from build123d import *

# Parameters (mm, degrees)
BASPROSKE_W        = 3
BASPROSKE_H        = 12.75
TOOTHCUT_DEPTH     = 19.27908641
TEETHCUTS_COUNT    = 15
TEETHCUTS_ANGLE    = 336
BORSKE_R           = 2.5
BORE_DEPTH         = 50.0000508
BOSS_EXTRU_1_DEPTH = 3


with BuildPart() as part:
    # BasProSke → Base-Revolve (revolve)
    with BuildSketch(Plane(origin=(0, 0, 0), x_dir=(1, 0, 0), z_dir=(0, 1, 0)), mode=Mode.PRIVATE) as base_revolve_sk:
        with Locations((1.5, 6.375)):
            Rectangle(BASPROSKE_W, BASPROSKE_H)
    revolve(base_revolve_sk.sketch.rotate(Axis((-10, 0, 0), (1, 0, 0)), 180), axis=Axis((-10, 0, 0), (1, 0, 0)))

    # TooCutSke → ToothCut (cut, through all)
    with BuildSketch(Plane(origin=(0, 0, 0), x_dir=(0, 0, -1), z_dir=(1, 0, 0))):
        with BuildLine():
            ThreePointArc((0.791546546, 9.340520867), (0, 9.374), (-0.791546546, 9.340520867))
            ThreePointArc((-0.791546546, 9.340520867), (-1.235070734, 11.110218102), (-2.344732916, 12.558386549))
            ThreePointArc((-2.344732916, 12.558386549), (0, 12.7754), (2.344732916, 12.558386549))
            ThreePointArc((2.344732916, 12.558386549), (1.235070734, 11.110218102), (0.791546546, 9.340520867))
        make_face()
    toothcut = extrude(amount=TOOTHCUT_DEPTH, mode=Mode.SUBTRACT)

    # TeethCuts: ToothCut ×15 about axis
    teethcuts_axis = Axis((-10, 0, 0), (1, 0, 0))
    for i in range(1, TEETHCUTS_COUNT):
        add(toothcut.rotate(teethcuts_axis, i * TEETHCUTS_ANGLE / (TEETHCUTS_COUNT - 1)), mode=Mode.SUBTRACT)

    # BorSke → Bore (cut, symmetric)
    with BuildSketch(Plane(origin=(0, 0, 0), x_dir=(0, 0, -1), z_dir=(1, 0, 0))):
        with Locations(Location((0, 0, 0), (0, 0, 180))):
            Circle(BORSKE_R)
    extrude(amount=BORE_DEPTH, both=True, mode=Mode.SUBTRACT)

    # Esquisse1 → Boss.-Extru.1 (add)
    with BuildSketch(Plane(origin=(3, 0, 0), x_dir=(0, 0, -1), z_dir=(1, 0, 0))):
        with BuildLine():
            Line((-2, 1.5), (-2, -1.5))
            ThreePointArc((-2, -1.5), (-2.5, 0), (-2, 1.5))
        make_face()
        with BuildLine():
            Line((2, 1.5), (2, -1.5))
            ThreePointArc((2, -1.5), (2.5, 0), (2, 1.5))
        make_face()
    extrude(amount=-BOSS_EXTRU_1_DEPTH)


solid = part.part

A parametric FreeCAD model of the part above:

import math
import FreeCAD as App
import Part
import Sketcher
Q = App.Units.Quantity

doc = App.newDocument("Part")
body = doc.addObject("PartDesign::Body", "Body")

sketch1 = doc.addObject("Sketcher::SketchObject", "Sketch")
body.addObject(sketch1)
sketch1.AttachmentSupport = (doc.XZ_Plane, [""])
sketch1.MapMode = "FlatFace"
sketch1.addGeometry([
    Part.LineSegment(App.Vector(0, -12.8, 0), App.Vector(0, 0, 0)),
    Part.LineSegment(App.Vector(0, 0, 0), App.Vector(3, 0, 0)),
    Part.LineSegment(App.Vector(3, 0, 0), App.Vector(3, -12.8, 0)),
    Part.LineSegment(App.Vector(3, -12.8, 0), App.Vector(0, -12.8, 0)),
], False)
sketch1.addConstraint([
    Sketcher.Constraint("Coincident", 0, 2, 1, 1),
    Sketcher.Constraint("Coincident", 1, 2, 2, 1),
    Sketcher.Constraint("Coincident", 2, 2, 3, 1),
    Sketcher.Constraint("Coincident", 3, 2, 0, 1),
    Sketcher.Constraint("Vertical", 0),
    Sketcher.Constraint("Horizontal", 1),
    Sketcher.Constraint("Vertical", 2),
    Sketcher.Constraint("Horizontal", 3),
    Sketcher.Constraint("Coincident", 0, 2, -1, 1),
    Sketcher.Constraint("DistanceX", 1, 1, 1, 2, Q("3 mm")),
    Sketcher.Constraint("DistanceY", 0, 1, 0, 2, Q("12.75 mm")),
])
revolution = doc.addObject("PartDesign::Revolution", "Revolution")
body.addObject(revolution)
revolution.Profile = sketch1
revolution.ReferenceAxis = (sketch1, ["H_Axis"])
revolution.Angle = 360

sketch2 = doc.addObject("Sketcher::SketchObject", "Sketch001")
body.addObject(sketch2)
sketch2.AttachmentSupport = (doc.YZ_Plane, [""])
sketch2.MapMode = "FlatFace"
sketch2.addGeometry([
    Part.ArcOfCircle(Part.Circle(App.Vector(0, 0, 0), App.Vector(0, 0, 1), 9.4), math.radians(-4.84), math.radians(4.84)),
    Part.ArcOfCircle(Part.Circle(App.Vector(9.2, -5.3, 0), App.Vector(0, 0, 1), 4.5), math.radians(41), math.radians(88)),
    Part.ArcOfCircle(Part.Circle(App.Vector(0, 0, 0), App.Vector(0, 0, 1), 12.8), math.radians(-11), math.radians(11)),
    Part.ArcOfCircle(Part.Circle(App.Vector(9.2, 5.3, 0), App.Vector(0, 0, 1), 4.5), math.radians(-88), math.radians(-41)),
], False)
sketch2.addConstraint([
    Sketcher.Constraint("Coincident", 0, 1, 1, 2),
    Sketcher.Constraint("Coincident", 1, 1, 2, 1),
    Sketcher.Constraint("Coincident", 2, 2, 3, 2),
    Sketcher.Constraint("Coincident", 3, 1, 0, 2),
    Sketcher.Constraint("Coincident", 0, 3, -1, 1),
    Sketcher.Constraint("Coincident", 2, 3, -1, 1),
    Sketcher.Constraint("Equal", 1, 3),
    Sketcher.Constraint("Symmetric", 1, 3, 3, 3, -1),
    Sketcher.Constraint("Radius", 1, Q("4.5 mm")),
    Sketcher.Constraint("Radius", 0, Q("9.374 mm")),
    Sketcher.Constraint("Radius", 2, Q("12.7754 mm")),
    Sketcher.Constraint("DistanceX", 1, 3, 0, 1, Q("0.186402 mm")),
    Sketcher.Constraint("DistanceX", -1, 1, 1, 3, Q("9.154119 mm")),
])
pocket1 = doc.addObject("PartDesign::Pocket", "Pocket")
body.addObject(pocket1)
pocket1.Profile = sketch2
pocket1.Type = "ThroughAll"
pocket1.Reversed = True
doc.recompute()

polarpattern = doc.addObject("PartDesign::PolarPattern", "PolarPattern")
body.addObject(polarpattern)
polarpattern.Originals = [pocket1]
polarpattern.Axis = (doc.X_Axis, [""])
polarpattern.Angle = 360
polarpattern.Occurrences = 15
body.Tip = polarpattern

sketch3 = doc.addObject("Sketcher::SketchObject", "Sketch002")
body.addObject(sketch3)
sketch3.AttachmentSupport = (doc.YZ_Plane, [""])
sketch3.MapMode = "FlatFace"
sketch3.addGeometry(Part.Circle(App.Vector(0, 0, 0), App.Vector(0, 0, 1), 2.5), False)
sketch3.addConstraint([
    Sketcher.Constraint("Coincident", 0, 3, -1, 1),
    Sketcher.Constraint("Diameter", 0, Q("5 mm")),
])
pocket2 = doc.addObject("PartDesign::Pocket", "Pocket001")
body.addObject(pocket2)
pocket2.Profile = sketch3
pocket2.Length = 100.000102
pocket2.Midplane = True

sketch4 = doc.addObject("Sketcher::SketchObject", "Sketch003")
body.addObject(sketch4)
sketch4.AttachmentSupport = (doc.YZ_Plane, [""])
sketch4.MapMode = "FlatFace"
sketch4.AttachmentOffset = App.Placement(App.Vector(0, 0, 3), App.Rotation())
sketch4.addGeometry([
    Part.LineSegment(App.Vector(-1.5, 2, 0), App.Vector(1.5, 2, 0)),
    Part.ArcOfCircle(Part.Circle(App.Vector(0, 0, 0), App.Vector(0, 0, 1), 2.5), math.radians(53), math.radians(127)),
    Part.LineSegment(App.Vector(1.5, -2, 0), App.Vector(-1.5, -2, 0)),
    Part.ArcOfCircle(Part.Circle(App.Vector(0, 0, 0), App.Vector(0, 0, 1), 2.5), math.radians(-127), math.radians(-53)),
], False)
sketch4.addConstraint([
    Sketcher.Constraint("Coincident", 0, 1, 1, 2),
    Sketcher.Constraint("Coincident", 1, 1, 0, 2),
    Sketcher.Constraint("Coincident", 2, 1, 3, 2),
    Sketcher.Constraint("Coincident", 3, 1, 2, 2),
    Sketcher.Constraint("Horizontal", 0),
    Sketcher.Constraint("Horizontal", 2),
    Sketcher.Constraint("Coincident", 1, 3, -1, 1),
    Sketcher.Constraint("Coincident", 3, 3, -1, 1),
    Sketcher.Constraint("Equal", 1, 3),
    Sketcher.Constraint("Vertical", 1, 1, 2, 1),
    Sketcher.Constraint("Radius", 1, Q("2.5 mm")),
    Sketcher.Constraint("DistanceX", 0, 1, 0, 2, Q("3 mm")),
])
pad1 = doc.addObject("PartDesign::Pad", "Pad")
body.addObject(pad1)
pad1.Profile = sketch4
pad1.Length = 3
pad1.Reversed = True

doc.recompute()
